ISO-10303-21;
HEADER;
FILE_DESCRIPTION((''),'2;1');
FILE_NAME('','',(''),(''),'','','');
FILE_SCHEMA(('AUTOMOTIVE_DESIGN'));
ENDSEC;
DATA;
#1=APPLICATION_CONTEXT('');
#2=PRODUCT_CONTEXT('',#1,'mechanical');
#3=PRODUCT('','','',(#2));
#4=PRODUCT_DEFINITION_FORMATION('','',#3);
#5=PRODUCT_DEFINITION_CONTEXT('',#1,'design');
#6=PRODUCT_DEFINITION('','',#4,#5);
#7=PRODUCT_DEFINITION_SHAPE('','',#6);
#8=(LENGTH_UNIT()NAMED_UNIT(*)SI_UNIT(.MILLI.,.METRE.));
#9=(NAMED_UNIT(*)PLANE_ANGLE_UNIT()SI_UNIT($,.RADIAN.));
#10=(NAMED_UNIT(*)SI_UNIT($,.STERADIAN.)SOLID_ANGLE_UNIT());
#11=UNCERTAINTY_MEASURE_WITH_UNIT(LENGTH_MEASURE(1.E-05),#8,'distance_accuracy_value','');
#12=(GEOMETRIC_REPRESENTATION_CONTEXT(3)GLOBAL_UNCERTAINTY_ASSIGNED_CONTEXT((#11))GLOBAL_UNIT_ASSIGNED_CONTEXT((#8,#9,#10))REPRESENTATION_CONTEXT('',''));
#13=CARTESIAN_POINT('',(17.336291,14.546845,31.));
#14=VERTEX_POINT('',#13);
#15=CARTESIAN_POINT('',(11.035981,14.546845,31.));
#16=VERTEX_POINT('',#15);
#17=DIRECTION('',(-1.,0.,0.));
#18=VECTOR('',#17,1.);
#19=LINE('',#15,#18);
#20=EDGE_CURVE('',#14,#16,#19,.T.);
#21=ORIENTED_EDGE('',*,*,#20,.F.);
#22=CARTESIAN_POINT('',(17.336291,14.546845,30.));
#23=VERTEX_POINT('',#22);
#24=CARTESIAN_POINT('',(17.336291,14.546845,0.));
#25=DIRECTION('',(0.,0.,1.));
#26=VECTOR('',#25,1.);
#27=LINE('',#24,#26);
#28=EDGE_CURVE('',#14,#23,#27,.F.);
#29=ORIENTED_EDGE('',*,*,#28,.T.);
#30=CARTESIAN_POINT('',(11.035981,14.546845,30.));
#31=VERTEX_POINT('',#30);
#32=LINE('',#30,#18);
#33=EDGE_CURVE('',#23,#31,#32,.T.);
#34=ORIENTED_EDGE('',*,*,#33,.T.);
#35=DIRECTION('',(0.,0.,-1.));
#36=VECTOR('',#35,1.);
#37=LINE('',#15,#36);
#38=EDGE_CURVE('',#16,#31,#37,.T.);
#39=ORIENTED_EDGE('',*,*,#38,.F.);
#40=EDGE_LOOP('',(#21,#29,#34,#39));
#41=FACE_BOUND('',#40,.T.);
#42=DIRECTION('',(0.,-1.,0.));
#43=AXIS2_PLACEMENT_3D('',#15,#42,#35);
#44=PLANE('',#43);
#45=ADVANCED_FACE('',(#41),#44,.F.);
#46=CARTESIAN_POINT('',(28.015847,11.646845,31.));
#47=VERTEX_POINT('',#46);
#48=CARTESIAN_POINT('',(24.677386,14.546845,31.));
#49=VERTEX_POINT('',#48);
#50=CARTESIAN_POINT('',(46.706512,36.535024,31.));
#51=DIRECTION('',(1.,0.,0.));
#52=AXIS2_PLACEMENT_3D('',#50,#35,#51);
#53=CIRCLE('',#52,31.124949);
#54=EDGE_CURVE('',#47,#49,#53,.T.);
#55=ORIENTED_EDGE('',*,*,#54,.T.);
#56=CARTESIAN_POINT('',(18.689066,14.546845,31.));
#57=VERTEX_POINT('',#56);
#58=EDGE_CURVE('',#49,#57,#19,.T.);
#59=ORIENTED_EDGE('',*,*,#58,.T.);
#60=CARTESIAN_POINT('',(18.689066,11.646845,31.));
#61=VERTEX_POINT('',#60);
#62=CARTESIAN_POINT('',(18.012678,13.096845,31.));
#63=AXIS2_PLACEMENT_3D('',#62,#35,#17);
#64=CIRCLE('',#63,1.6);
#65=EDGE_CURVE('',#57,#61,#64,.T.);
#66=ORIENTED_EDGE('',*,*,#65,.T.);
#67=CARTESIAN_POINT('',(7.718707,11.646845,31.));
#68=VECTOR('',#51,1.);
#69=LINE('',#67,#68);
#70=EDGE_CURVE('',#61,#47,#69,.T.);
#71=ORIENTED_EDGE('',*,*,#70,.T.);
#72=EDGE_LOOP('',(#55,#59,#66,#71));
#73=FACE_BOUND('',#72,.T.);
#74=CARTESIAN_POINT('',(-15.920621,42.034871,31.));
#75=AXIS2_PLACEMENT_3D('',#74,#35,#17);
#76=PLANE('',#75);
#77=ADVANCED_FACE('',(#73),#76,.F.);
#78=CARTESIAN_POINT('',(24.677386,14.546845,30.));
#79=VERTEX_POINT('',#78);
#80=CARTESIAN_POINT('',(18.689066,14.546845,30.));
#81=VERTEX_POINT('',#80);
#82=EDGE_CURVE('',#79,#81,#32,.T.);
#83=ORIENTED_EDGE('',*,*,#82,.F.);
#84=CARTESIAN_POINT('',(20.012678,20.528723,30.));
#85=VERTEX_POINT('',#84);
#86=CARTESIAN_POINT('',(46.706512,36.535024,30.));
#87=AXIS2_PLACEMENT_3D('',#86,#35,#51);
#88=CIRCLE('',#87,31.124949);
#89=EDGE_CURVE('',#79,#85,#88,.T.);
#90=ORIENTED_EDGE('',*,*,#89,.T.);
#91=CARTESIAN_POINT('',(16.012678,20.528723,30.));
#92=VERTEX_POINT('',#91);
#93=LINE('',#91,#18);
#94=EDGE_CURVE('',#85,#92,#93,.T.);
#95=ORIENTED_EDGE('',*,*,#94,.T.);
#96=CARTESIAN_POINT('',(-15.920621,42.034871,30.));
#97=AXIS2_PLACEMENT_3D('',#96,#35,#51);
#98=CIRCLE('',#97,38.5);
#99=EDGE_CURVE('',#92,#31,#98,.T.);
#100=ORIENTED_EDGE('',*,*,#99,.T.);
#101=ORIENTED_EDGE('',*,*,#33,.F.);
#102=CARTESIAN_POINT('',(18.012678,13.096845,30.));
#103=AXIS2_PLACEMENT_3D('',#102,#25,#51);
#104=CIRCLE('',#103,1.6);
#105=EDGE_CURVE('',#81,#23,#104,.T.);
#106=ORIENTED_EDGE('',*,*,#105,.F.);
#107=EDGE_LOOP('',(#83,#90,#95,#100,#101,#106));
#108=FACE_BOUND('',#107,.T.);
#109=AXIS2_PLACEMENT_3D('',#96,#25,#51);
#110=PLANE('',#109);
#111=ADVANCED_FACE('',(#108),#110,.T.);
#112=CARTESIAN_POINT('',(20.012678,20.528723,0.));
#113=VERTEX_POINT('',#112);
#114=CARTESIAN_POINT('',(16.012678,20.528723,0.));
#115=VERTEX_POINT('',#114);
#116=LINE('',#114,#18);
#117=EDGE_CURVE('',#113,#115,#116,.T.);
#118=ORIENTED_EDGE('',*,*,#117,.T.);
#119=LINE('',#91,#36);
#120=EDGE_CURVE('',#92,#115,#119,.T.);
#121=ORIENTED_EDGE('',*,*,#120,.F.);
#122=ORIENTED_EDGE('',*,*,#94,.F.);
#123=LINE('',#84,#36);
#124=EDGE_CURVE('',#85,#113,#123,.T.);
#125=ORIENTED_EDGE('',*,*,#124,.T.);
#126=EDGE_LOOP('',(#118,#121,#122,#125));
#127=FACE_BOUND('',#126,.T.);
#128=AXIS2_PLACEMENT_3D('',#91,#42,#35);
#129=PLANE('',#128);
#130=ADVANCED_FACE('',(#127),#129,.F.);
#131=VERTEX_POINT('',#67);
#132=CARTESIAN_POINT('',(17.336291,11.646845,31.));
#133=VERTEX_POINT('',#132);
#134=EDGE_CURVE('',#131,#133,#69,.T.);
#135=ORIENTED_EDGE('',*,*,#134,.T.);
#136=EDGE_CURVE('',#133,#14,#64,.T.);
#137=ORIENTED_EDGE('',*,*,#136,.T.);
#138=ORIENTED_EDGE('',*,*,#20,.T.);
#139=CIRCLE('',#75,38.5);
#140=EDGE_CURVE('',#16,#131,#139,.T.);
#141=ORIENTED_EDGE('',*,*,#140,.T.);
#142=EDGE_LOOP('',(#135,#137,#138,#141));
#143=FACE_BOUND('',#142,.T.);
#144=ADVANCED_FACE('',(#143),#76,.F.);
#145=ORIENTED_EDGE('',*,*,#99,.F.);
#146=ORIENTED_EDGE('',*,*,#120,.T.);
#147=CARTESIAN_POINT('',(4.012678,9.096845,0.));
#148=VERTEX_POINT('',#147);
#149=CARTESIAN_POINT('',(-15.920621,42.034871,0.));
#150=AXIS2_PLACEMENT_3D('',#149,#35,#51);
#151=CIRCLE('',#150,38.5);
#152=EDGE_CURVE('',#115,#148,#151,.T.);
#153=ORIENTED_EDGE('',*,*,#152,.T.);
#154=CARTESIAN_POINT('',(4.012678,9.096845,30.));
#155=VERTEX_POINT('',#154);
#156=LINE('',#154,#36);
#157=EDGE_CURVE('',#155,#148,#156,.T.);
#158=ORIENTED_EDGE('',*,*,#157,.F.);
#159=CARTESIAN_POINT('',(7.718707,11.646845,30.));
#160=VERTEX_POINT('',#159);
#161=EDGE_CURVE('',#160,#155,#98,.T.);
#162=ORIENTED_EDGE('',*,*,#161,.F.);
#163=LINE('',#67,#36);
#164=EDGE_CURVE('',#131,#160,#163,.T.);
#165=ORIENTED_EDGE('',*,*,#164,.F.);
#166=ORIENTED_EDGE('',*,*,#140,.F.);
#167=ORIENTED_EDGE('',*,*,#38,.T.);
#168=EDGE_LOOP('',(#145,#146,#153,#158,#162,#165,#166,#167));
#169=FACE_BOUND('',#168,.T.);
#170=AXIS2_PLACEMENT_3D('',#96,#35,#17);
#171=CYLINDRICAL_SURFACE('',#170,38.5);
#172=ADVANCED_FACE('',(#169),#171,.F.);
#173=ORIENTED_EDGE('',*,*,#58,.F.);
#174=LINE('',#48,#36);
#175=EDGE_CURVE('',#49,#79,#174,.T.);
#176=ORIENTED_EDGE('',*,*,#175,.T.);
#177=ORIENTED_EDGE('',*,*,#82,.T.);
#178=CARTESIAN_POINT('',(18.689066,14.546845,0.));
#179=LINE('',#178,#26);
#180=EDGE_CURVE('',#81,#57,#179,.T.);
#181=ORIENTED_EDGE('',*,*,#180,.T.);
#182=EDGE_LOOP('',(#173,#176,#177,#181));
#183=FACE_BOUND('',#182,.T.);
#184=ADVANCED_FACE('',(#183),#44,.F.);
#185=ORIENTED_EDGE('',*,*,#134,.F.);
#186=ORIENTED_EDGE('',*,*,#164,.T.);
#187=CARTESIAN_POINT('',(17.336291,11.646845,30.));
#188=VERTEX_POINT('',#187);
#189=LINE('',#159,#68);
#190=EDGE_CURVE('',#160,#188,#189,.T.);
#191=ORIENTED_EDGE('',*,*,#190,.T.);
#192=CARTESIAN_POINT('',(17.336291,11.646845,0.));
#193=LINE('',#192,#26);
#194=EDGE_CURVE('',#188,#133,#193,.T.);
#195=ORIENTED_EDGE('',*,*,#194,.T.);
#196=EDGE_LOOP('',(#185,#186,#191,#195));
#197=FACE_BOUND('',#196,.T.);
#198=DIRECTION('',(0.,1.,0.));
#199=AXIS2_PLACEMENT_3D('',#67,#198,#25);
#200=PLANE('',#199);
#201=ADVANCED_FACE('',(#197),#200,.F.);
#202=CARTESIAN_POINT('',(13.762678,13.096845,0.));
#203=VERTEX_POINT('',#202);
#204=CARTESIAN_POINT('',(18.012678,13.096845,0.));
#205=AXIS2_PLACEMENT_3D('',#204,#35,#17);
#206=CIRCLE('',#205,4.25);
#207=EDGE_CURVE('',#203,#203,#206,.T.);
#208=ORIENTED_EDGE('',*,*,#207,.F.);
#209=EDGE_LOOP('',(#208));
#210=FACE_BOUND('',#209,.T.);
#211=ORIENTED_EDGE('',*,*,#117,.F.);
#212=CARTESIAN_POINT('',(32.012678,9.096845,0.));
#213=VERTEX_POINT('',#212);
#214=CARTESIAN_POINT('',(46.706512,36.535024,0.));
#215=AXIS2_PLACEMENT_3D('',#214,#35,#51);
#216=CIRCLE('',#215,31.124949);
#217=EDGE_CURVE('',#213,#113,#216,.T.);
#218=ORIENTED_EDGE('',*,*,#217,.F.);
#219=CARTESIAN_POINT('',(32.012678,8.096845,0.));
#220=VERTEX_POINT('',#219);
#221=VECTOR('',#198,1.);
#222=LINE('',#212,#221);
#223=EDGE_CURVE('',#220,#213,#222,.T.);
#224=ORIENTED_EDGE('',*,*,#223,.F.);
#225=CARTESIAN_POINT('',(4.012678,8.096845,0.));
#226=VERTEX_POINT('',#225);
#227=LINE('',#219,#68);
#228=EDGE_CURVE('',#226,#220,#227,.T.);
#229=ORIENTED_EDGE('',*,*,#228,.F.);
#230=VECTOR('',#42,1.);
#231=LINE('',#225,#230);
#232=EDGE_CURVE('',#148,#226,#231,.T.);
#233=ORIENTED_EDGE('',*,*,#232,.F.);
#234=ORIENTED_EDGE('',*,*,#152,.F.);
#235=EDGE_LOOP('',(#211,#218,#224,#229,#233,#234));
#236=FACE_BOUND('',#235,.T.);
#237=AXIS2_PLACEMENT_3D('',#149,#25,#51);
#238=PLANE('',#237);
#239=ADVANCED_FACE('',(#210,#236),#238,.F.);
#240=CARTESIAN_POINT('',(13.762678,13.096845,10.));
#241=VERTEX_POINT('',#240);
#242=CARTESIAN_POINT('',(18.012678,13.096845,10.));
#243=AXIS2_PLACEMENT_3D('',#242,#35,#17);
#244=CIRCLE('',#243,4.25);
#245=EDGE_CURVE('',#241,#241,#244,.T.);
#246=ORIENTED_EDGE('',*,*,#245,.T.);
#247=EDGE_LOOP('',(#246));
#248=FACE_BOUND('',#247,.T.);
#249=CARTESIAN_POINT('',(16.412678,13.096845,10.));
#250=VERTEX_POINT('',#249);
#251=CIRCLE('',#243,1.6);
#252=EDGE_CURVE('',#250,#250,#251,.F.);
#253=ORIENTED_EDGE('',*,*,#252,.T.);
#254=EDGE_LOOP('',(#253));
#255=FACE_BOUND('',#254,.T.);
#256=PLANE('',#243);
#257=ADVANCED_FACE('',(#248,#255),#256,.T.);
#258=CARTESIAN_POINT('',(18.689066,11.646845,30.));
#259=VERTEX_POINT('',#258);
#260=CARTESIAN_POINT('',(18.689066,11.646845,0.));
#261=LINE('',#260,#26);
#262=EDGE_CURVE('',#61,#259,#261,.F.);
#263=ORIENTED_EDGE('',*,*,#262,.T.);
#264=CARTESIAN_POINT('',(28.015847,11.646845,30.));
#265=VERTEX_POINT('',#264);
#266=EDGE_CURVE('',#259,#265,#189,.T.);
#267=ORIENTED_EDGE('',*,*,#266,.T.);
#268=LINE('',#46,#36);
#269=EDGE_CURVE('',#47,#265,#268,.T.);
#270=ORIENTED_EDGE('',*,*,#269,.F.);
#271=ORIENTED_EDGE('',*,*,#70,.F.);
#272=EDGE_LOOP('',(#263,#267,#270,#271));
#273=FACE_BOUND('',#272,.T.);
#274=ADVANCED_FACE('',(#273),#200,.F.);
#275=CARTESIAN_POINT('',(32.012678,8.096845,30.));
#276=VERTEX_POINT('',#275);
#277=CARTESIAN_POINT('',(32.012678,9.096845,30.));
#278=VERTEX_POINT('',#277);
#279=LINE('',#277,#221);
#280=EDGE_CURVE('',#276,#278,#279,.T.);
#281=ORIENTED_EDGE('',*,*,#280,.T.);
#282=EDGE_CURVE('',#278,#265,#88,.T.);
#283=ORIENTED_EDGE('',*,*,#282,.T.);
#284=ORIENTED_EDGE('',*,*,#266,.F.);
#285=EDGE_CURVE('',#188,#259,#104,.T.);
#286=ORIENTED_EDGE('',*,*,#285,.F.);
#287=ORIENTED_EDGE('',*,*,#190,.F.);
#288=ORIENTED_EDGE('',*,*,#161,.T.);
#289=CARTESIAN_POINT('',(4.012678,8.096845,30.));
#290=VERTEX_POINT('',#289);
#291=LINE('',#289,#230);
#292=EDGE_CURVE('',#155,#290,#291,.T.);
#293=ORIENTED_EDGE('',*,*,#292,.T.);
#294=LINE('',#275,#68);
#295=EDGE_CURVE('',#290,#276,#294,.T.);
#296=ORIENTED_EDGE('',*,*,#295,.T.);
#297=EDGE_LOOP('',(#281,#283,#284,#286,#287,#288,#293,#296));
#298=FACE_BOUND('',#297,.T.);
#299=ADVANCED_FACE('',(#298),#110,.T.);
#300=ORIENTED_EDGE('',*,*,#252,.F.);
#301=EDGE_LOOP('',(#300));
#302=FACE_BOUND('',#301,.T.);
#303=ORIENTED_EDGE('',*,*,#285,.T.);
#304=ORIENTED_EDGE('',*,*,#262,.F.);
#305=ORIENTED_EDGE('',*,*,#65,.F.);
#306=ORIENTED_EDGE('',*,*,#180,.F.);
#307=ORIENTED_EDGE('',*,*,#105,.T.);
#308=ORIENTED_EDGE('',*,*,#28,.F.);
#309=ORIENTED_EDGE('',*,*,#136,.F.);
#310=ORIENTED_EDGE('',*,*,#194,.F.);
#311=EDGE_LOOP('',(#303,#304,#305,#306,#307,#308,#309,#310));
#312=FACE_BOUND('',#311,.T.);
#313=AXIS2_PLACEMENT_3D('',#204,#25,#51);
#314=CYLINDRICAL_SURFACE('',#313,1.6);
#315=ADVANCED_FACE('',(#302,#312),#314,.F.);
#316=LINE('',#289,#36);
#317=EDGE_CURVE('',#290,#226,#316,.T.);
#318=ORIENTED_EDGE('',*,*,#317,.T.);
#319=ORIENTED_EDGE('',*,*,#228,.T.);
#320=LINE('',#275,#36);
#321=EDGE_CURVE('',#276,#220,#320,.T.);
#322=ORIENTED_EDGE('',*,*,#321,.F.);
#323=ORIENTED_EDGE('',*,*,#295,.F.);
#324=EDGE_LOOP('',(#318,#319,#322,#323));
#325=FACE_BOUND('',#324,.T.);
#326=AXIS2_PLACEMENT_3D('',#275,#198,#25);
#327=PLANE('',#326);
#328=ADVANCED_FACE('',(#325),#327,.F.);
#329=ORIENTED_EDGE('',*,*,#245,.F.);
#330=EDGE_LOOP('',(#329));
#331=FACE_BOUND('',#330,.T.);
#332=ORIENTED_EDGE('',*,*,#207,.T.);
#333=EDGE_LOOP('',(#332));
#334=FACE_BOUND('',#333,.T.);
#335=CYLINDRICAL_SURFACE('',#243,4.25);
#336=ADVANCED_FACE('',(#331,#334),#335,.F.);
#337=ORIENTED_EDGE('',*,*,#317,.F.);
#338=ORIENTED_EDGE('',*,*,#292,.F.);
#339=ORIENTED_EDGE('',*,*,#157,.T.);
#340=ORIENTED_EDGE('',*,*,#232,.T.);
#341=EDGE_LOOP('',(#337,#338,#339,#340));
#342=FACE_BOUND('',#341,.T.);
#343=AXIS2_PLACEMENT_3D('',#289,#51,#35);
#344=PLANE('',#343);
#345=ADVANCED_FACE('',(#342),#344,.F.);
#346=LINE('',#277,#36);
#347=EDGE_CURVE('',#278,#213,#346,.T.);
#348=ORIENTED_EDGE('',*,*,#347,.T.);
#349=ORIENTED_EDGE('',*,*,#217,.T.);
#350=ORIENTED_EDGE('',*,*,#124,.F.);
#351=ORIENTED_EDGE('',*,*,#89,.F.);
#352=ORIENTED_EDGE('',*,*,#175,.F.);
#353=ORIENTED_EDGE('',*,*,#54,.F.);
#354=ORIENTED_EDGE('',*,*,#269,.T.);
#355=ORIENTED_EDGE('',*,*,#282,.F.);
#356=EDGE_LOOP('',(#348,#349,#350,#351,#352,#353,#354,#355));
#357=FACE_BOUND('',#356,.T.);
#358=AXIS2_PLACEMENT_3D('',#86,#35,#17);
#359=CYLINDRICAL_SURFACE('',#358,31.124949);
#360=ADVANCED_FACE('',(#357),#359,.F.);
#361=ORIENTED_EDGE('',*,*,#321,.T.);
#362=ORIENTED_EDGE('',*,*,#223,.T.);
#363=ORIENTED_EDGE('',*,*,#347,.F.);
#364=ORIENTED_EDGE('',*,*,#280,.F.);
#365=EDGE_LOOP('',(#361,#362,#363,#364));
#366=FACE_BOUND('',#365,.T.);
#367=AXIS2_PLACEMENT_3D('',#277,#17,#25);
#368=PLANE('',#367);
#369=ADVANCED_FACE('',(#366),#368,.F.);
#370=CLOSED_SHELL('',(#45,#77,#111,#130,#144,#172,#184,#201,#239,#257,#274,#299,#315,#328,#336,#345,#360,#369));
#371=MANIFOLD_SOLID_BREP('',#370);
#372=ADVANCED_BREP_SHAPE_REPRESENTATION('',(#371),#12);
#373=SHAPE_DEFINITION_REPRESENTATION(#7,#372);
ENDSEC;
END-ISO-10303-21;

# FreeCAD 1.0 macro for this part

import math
import FreeCAD as App
import Part
import Sketcher

doc = App.newDocument("Part")
body = doc.addObject("PartDesign::Body", "Body")

# Sketch on XY plane
sketch1 = body.newObject("Sketcher::SketchObject", "Sketch")
sketch1.AttachmentSupport = (doc.getObject("XY_Plane"), [""])
sketch1.MapMode = "FlatFace"
sketch1.addGeometry([
    Part.LineSegment(App.Vector(4.012678, 9.096845, 0), App.Vector(4.012678, 8.096845, 0)),  # 0
    Part.LineSegment(App.Vector(4.012678, 8.096845, 0), App.Vector(32.012678, 8.096845, 0)),  # 1
    Part.LineSegment(App.Vector(32.012678, 8.096845, 0), App.Vector(32.012678, 9.096845, 0)),  # 2
    Part.ArcOfCircle(Part.Circle(App.Vector(46.706512, 36.535024, 0), App.Vector(0, 0, 1), 31.124949), math.radians(-149.052028), math.radians(-118.170167)),  # 3
    Part.LineSegment(App.Vector(20.012678, 20.528723, 0), App.Vector(16.012678, 20.528723, 0)),  # 4
    Part.ArcOfCircle(Part.Circle(App.Vector(-15.920621, 42.034871, 0), App.Vector(0, 0, 1), 38.5), math.radians(-58.818685), math.radians(-33.95912)),  # 5
], False)
sketch1.addConstraint([
    Sketcher.Constraint("Coincident", 0, 2, 1, 1),
    Sketcher.Constraint("Coincident", 1, 2, 2, 1),
    Sketcher.Constraint("Coincident", 2, 2, 3, 2),
    Sketcher.Constraint("Coincident", 3, 1, 4, 1),
    Sketcher.Constraint("Coincident", 4, 2, 5, 2),
    Sketcher.Constraint("Coincident", 5, 1, 0, 1),
    Sketcher.Constraint("Vertical", 0),
    Sketcher.Constraint("Horizontal", 1),
    Sketcher.Constraint("Vertical", 2),
    Sketcher.Constraint("Horizontal", 4),
    Sketcher.Constraint("Horizontal", 2, 2, 5, 1),
    Sketcher.Constraint("Radius", 5, 38.5),
    Sketcher.Constraint("DistanceX", 1, 1, 1, 2, 28.0),
    Sketcher.Constraint("DistanceX", 4, 2, 4, 1, 4.0),
    Sketcher.Constraint("DistanceY", 0, 2, 0, 1, 1.0),
    Sketcher.Constraint("DistanceX", 3, 1, 2, 2, 12.0),
    Sketcher.Constraint("Radius", 3, 31.124949),
    Sketcher.Constraint("DistanceX", 5, 3, 0, 2, 19.933299),
    Sketcher.Constraint("DistanceX", 5, 3, -1, 1, 15.920621),
    Sketcher.Constraint("DistanceY", -1, 1, 5, 3, 42.034871),
])
pad1 = body.newObject("PartDesign::Pad", "Pad")
pad1.Profile = sketch1
pad1.Length = 30

# Sketch on XY plane
sketch2 = body.newObject("Sketcher::SketchObject", "Sketch001")
sketch2.AttachmentSupport = (doc.getObject("XY_Plane"), [""])
sketch2.MapMode = "FlatFace"
sketch2.AttachmentOffset = App.Placement(App.Vector(0, 0, 30), App.Rotation())
sketch2.addGeometry([
    Part.LineSegment(App.Vector(24.677386, 14.546845, 0), App.Vector(11.035981, 14.546845, 0)),
    Part.ArcOfCircle(Part.Circle(App.Vector(-15.920621, 42.034871, 0), App.Vector(0, 0, 1), 38.5), math.radians(-52.120086), math.radians(-45.559236)),
    Part.LineSegment(App.Vector(7.718707, 11.646845, 0), App.Vector(28.015847, 11.646845, 0)),
    Part.ArcOfCircle(Part.Circle(App.Vector(46.706512, 36.535024, 0), App.Vector(0, 0, 1), 31.124949), math.radians(-135.053299), math.radians(-126.906023)),
], False)
sketch2.addConstraint([
    Sketcher.Constraint("Coincident", 0, 2, 1, 2),
    Sketcher.Constraint("Coincident", 1, 1, 2, 1),
    Sketcher.Constraint("Coincident", 2, 2, 3, 2),
    Sketcher.Constraint("Coincident", 3, 1, 0, 1),
    Sketcher.Constraint("Horizontal", 0),
    Sketcher.Constraint("Horizontal", 2),
    Sketcher.Constraint("Radius", 1, 38.5),
    Sketcher.Constraint("DistanceY", 1, 1, 0, 2, 2.9),
    Sketcher.Constraint("Radius", 3, 31.124949),
    Sketcher.Constraint("DistanceX", 2, 1, 2, 2, 20.297139),
    Sketcher.Constraint("DistanceX", 0, 2, 0, 1, 13.641405),
    Sketcher.Constraint("DistanceX", 1, 3, -1, 1, 15.920621),
    Sketcher.Constraint("DistanceY", -1, 1, 1, 3, 42.034871),
    Sketcher.Constraint("DistanceX", -1, 1, 0, 2, 11.035981),
])
pad2 = body.newObject("PartDesign::Pad", "Pad001")
pad2.Profile = sketch2
pad2.Length = 1

# Sketch on XY plane
sketch3 = body.newObject("Sketcher::SketchObject", "Sketch002")
sketch3.AttachmentSupport = (doc.getObject("XY_Plane"), [""])
sketch3.MapMode = "FlatFace"
sketch3.AttachmentOffset = App.Placement(App.Vector(0, 0, 31), App.Rotation())
sketch3.addGeometry(Part.Circle(App.Vector(18.012678, 13.096845, 0), App.Vector(0, 0, 1), 1.6), False)
sketch3.addConstraint([
    Sketcher.Constraint("Diameter", 0, 3.2),
    Sketcher.Constraint("DistanceX", -1, 1, 0, 3, 18.012678),
    Sketcher.Constraint("DistanceY", -1, 1, 0, 3, 13.096845),
])
pocket1 = body.newObject("PartDesign::Pocket", "Pocket")
pocket1.Profile = sketch3
pocket1.Type = "ThroughAll"

# Sketch on XY plane
sketch4 = body.newObject("Sketcher::SketchObject", "Sketch003")
sketch4.AttachmentSupport = (doc.getObject("XY_Plane"), [""])
sketch4.MapMode = "FlatFace"
sketch4.addGeometry(Part.Circle(App.Vector(18.012678, 13.096845, 0), App.Vector(0, 0, 1), 4.25), False)
sketch4.addConstraint([
    Sketcher.Constraint("Diameter", 0, 8.5),
    Sketcher.Constraint("DistanceX", -1, 1, 0, 3, 18.012678),
    Sketcher.Constraint("DistanceY", -1, 1, 0, 3, 13.096845),
])
pocket2 = body.newObject("PartDesign::Pocket", "Pocket001")
pocket2.Profile = sketch4
pocket2.Length = 10
pocket2.Reversed = True

doc.recompute()
